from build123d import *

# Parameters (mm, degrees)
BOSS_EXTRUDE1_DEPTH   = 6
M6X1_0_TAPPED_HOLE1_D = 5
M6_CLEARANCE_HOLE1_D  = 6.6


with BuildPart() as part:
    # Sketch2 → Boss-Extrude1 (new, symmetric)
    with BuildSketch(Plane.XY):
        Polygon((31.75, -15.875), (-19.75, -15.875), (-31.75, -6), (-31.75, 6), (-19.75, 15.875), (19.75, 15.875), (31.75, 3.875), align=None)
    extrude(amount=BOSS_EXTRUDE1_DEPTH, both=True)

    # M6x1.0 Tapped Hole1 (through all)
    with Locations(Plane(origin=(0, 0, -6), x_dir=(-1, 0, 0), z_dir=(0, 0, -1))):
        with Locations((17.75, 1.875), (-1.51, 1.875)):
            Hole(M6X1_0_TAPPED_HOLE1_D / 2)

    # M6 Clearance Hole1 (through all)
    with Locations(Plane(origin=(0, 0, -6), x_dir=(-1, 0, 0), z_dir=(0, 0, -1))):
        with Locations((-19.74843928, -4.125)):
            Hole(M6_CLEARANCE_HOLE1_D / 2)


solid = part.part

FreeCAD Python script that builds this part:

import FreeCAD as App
import Part
import Sketcher
Q = App.Units.Quantity

doc = App.newDocument("Part")
params = doc.addObject("Spreadsheet::Sheet", "Params")
for row, (alias, value) in enumerate([
    ("sketch1_height", "12 mm"),
    ("sketch1_width", "51.5 mm"),
    ("sketch1_width2", "39.5 mm"),
    ("sketch1_height2", "19.75 mm"),
    ("pad1_length", "12 mm"),
    ("sketch2_diameter", "5 mm"),
    ("hole_diameter", "5 mm"),
    ("sketch3_diameter", "6.6 mm"),
    ("hole2_diameter", "6.6 mm"),
], start=1):
    params.set(f"A{row}", alias)
    params.set(f"B{row}", "=" + value)
    params.setAlias(f"B{row}", alias)

body = doc.addObject("PartDesign::Body", "Body")

# Sketch on XY plane
sketch1 = body.newObject("Sketcher::SketchObject", "Sketch")
sketch1.AttachmentSupport = (doc.getObject("XY_Plane"), [""])
sketch1.MapMode = "FlatFace"
sketch1.addGeometry([
    Part.LineSegment(App.Vector(-20, -16, 0), App.Vector(32, -16, 0)),  # 0
    Part.LineSegment(App.Vector(32, -16, 0), App.Vector(32, 4, 0)),  # 1
    Part.LineSegment(App.Vector(32, 4, 0), App.Vector(20, 16, 0)),  # 2
    Part.LineSegment(App.Vector(20, 16, 0), App.Vector(-20, 16, 0)),  # 3
    Part.LineSegment(App.Vector(-20, 16, 0), App.Vector(-32, 6, 0)),  # 4
    Part.LineSegment(App.Vector(-32, 6, 0), App.Vector(-32, -6, 0)),  # 5
    Part.LineSegment(App.Vector(-32, -6, 0), App.Vector(-20, -16, 0)),  # 6
], False)
sketch1.addConstraint([
    Sketcher.Constraint("Coincident", 0, 2, 1, 1),
    Sketcher.Constraint("Coincident", 1, 2, 2, 1),
    Sketcher.Constraint("Coincident", 2, 2, 3, 1),
    Sketcher.Constraint("Coincident", 3, 2, 4, 1),
    Sketcher.Constraint("Coincident", 4, 2, 5, 1),
    Sketcher.Constraint("Coincident", 5, 2, 6, 1),
    Sketcher.Constraint("Coincident", 6, 2, 0, 1),
    Sketcher.Constraint("Horizontal", 0),
    Sketcher.Constraint("Vertical", 1),
    Sketcher.Constraint("Horizontal", 3),
    Sketcher.Constraint("Vertical", 5),
    Sketcher.Constraint("Symmetric", 2, 2, 6, 2, -1, 1),
    Sketcher.Constraint("Vertical", 3, 2, 6, 2),
    Sketcher.Constraint("Equal", 4, 6),
    Sketcher.Constraint("DistanceY", 5, 2, 5, 1, Q("12 mm")),
    Sketcher.Constraint("Angle", 2, Q("135 deg")),
    Sketcher.Constraint("DistanceX", 0, 1, 0, 2, Q("51.5 mm")),
    Sketcher.Constraint("DistanceX", 3, 2, 3, 1, Q("39.5 mm")),
    Sketcher.Constraint("DistanceX", 4, 2, 3, 2, Q("12 mm")),
    Sketcher.Constraint("DistanceY", 1, 1, 1, 2, Q("19.75 mm")),
])
sketch1.setExpression("Constraints[14]", "Params.sketch1_height")
sketch1.setExpression("Constraints[16]", "Params.sketch1_width")
sketch1.setExpression("Constraints[17]", "Params.sketch1_width2")
sketch1.setExpression("Constraints[19]", "Params.sketch1_height2")
pad1 = body.newObject("PartDesign::Pad", "Pad")
pad1.Profile = sketch1
pad1.setExpression("Length", "Params.pad1_length")
pad1.Midplane = True

# Sketch on XY plane
sketch2 = body.newObject("Sketcher::SketchObject", "Sketch001")
sketch2.AttachmentSupport = (doc.getObject("XY_Plane"), [""])
sketch2.MapMode = "FlatFace"
sketch2.AttachmentOffset = App.Placement(App.Vector(0, 0, -6), App.Rotation())
sketch2.addGeometry([
    Part.Circle(App.Vector(-17.8, 1.9, 0), App.Vector(0, 0, 1), 2.5),
    Part.Circle(App.Vector(1.5, 1.9, 0), App.Vector(0, 0, 1), 2.5),
], False)
sketch2.addConstraint([
    Sketcher.Constraint("Equal", 0, 1),
    Sketcher.Constraint("Horizontal", 0, 3, 1, 3),
    Sketcher.Constraint("Diameter", 0, Q("5 mm")),
    Sketcher.Constraint("DistanceX", 0, 3, -1, 1, Q("17.75 mm")),
    Sketcher.Constraint("DistanceX", -1, 1, 1, 3, Q("1.51 mm")),
    Sketcher.Constraint("DistanceY", -1, 1, 0, 3, Q("1.875 mm")),
])
sketch2.setExpression("Constraints[2]", "Params.sketch2_diameter")
doc.recompute()
hole = body.newObject("PartDesign::Hole", "Hole")
hole.Profile = sketch2
hole.ThreadType = "None"
hole.setExpression("Diameter", "Params.hole_diameter")
hole.DepthType = "ThroughAll"
hole.Reversed = True

# Sketch on XY plane
sketch3 = body.newObject("Sketcher::SketchObject", "Sketch002")
sketch3.AttachmentSupport = (doc.getObject("XY_Plane"), [""])
sketch3.MapMode = "FlatFace"
sketch3.AttachmentOffset = App.Placement(App.Vector(0, 0, -6), App.Rotation())
sketch3.addGeometry(Part.Circle(App.Vector(19.7, -4.1, 0), App.Vector(0, 0, 1), 3.3), False)
sketch3.addConstraint([
    Sketcher.Constraint("Diameter", 0, Q("6.6 mm")),
    Sketcher.Constraint("DistanceY", 0, 3, -1, 1, Q("4.125 mm")),
    Sketcher.Constraint("DistanceX", -1, 1, 0, 3, Q("19.748439 mm")),
])
sketch3.setExpression("Constraints[0]", "Params.sketch3_diameter")
doc.recompute()
hole2 = body.newObject("PartDesign::Hole", "Hole001")
hole2.Profile = sketch3
hole2.ThreadType = "None"
hole2.setExpression("Diameter", "Params.hole2_diameter")
hole2.DepthType = "ThroughAll"
hole2.Reversed = True

doc.recompute()
